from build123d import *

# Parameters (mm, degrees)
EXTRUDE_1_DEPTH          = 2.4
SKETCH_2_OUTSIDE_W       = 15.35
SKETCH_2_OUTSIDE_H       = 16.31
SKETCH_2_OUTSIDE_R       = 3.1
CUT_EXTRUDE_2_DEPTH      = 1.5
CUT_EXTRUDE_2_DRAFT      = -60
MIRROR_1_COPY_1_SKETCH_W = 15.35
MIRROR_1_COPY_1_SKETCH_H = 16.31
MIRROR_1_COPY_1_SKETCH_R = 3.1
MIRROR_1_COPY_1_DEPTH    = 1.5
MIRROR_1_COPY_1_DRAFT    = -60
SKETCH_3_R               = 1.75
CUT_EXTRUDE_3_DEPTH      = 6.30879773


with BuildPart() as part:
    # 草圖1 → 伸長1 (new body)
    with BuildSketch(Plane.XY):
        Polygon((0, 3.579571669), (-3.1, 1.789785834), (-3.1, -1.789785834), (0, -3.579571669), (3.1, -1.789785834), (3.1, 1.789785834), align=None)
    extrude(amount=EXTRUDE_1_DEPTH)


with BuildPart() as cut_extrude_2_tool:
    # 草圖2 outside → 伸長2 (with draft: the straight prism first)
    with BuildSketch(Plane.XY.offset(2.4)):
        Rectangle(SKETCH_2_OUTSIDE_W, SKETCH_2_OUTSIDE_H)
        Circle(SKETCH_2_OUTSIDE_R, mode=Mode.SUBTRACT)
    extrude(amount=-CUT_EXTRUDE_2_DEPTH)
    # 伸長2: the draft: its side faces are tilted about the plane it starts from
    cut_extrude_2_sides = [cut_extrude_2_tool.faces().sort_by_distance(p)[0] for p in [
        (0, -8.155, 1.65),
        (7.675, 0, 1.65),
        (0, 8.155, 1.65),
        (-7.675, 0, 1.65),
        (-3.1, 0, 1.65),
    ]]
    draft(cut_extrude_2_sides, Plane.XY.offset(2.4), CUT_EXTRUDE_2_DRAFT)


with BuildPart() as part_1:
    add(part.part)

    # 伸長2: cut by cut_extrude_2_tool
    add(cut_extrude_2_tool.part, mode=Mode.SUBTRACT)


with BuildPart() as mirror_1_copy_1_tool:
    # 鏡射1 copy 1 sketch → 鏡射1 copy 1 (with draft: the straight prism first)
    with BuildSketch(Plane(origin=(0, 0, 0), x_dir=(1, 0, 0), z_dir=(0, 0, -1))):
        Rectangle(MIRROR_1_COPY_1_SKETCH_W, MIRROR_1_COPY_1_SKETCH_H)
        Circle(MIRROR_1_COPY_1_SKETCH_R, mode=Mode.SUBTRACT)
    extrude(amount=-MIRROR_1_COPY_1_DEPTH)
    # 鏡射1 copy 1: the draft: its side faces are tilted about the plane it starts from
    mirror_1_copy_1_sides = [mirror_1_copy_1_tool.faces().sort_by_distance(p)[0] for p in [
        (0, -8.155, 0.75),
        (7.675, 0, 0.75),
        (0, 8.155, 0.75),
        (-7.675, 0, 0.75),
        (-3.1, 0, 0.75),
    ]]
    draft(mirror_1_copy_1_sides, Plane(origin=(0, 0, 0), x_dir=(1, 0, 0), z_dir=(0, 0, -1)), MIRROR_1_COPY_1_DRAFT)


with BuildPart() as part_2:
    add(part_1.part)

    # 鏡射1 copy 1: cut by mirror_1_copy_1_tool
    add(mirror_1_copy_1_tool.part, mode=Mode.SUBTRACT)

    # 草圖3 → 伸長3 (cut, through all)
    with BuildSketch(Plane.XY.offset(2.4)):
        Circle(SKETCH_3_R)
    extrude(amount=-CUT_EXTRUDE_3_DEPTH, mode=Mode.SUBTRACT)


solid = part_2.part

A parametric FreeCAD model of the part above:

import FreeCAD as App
import Part
import Sketcher
Q = App.Units.Quantity


def faces_at(feature, points):
    """Names of the faces that lie closest to the given points."""
    faces = feature.Shape.Faces
    near = lambda p: min(range(len(faces)), key=lambda i: faces[i].distToShape(Part.Vertex(*p))[0])
    return sorted({f"Face{near(p) + 1}" for p in points})


def add_polygon(sketch, points):
    """Adds a closed chain of lines whose ends are joined by coincident constraints."""
    first, n = sketch.GeometryCount, len(points)
    for a, b in zip(points, points[1:] + points[:1]):
        sketch.addGeometry(Part.LineSegment(App.Vector(*a, 0), App.Vector(*b, 0)), False)
    for i in range(n):
        sketch.addConstraint(Sketcher.Constraint("Coincident", first + i, 2, first + (i + 1) % n, 1))

doc = App.newDocument("Part")
body = doc.addObject("PartDesign::Body", "Body")

sketch1 = body.newObject("Sketcher::SketchObject", "Sketch")
sketch1.AttachmentSupport = (doc.getObject("XY_Plane"), [""])
sketch1.MapMode = "FlatFace"
add_polygon(sketch1, [(0, 3.6), (-3.1, 1.8), (-3.1, -1.8), (0, -3.6), (3.1, -1.8), (3.1, 1.8)])
sketch1.addConstraint(Sketcher.Constraint("Vertical", 1))
sketch1.addConstraint(Sketcher.Constraint("Vertical", 4))
sketch1.addConstraint(Sketcher.Constraint("Symmetric", 0, 2, 3, 2, -1, 1))
sketch1.addConstraint(Sketcher.Constraint("Symmetric", 2, 2, 5, 2, -1, 1))
sketch1.addConstraint(Sketcher.Constraint("PointOnObject", 2, 2, -2))
sketch1.addConstraint(Sketcher.Constraint("Parallel", 2, 5))
sketch1.addConstraint(Sketcher.Constraint("Horizontal", 1, 2, 3, 2))
sketch1.addConstraint(Sketcher.Constraint("Angle", 0, Q("-150 deg")))
sketch1.addConstraint(Sketcher.Constraint("DistanceX", 0, 2, -1, 1, 3.1))
sketch1.addConstraint(Sketcher.Constraint("DistanceY", 1, 2, 1, 1, 3.579572))
pad1 = body.newObject("PartDesign::Pad", "Pad")
pad1.Profile = sketch1
pad1.Length = 2.4
body2 = doc.addObject("PartDesign::Body", "Body001")

sketch2 = body2.newObject("Sketcher::SketchObject", "Sketch001")
sketch2.AttachmentSupport = (doc.getObject("XY_Plane001"), [""])
sketch2.MapMode = "FlatFace"
sketch2.AttachmentOffset = App.Placement(App.Vector(0, 0, 2.4), App.Rotation())
add_polygon(sketch2, [(-7.7, 8.2), (-7.7, -8.2), (7.7, -8.2), (7.7, 8.2)])
sketch2.addGeometry(Part.Circle(App.Vector(0, 0, 0), App.Vector(0, 0, 1), 3.1), False)
sketch2.addConstraint(Sketcher.Constraint("Vertical", 0))
sketch2.addConstraint(Sketcher.Constraint("Horizontal", 1))
sketch2.addConstraint(Sketcher.Constraint("Vertical", 2))
sketch2.addConstraint(Sketcher.Constraint("Horizontal", 3))
sketch2.addConstraint(Sketcher.Constraint("Coincident", 4, 3, -1, 1))
sketch2.addConstraint(Sketcher.Constraint("Symmetric", 0, 2, 2, 2, -1, 1))
sketch2.addConstraint(Sketcher.Constraint("Diameter", 4, 6.2))
sketch2.addConstraint(Sketcher.Constraint("DistanceX", 1, 1, 1, 2, 15.35))
sketch2.addConstraint(Sketcher.Constraint("DistanceY", 0, 2, 0, 1, 16.31))
pad2 = body2.newObject("PartDesign::Pad", "Pad001")
pad2.Profile = sketch2
pad2.Length = 1.5
pad2.Reversed = True
doc.recompute()

datumplane = body2.newObject("PartDesign::Plane", "DatumPlane")
datumplane.AttachmentSupport = (doc.getObject("XY_Plane001"), [""])
datumplane.MapMode = "FlatFace"
datumplane.AttachmentOffset = App.Placement(App.Vector(0, 0, 2.4), App.Rotation())
draft = body2.newObject("PartDesign::Draft", "Draft")
draft.Base = (pad2, faces_at(pad2, [
    (0, -8.155, 1.65),
    (7.675, 0, 1.65),
    (0, 8.155, 1.65),
    (-7.675, 0, 1.65),
    (-3.1, 0, 1.65),
]))
draft.NeutralPlane = (datumplane, [""])
draft.Angle = 60
draft.Reversed = True
doc.recompute()

boolean = body.newObject("PartDesign::Boolean", "Boolean")
boolean.Type = "Cut"
boolean.addObjects([body2])
body3 = doc.addObject("PartDesign::Body", "Body002")

sketch3 = body3.newObject("Sketcher::SketchObject", "Sketch002")
sketch3.AttachmentSupport = (doc.getObject("XY_Plane002"), [""])
sketch3.MapMode = "FlatFace"
add_polygon(sketch3, [(-7.7, -8.2), (-7.7, 8.2), (7.7, 8.2), (7.7, -8.2)])
sketch3.addGeometry(Part.Circle(App.Vector(0, 0, 0), App.Vector(0, 0, 1), 3.1), False)
sketch3.addConstraint(Sketcher.Constraint("Vertical", 0))
sketch3.addConstraint(Sketcher.Constraint("Horizontal", 1))
sketch3.addConstraint(Sketcher.Constraint("Vertical", 2))
sketch3.addConstraint(Sketcher.Constraint("Horizontal", 3))
sketch3.addConstraint(Sketcher.Constraint("Coincident", 4, 3, -1, 1))
sketch3.addConstraint(Sketcher.Constraint("Symmetric", 0, 2, 2, 2, -1, 1))
sketch3.addConstraint(Sketcher.Constraint("Diameter", 4, 6.2))
sketch3.addConstraint(Sketcher.Constraint("DistanceX", 1, 1, 1, 2, 15.35))
sketch3.addConstraint(Sketcher.Constraint("DistanceY", 0, 1, 0, 2, 16.31))
pad3 = body3.newObject("PartDesign::Pad", "Pad002")
pad3.Profile = sketch3
pad3.Length = 1.5
doc.recompute()

draft2 = body3.newObject("PartDesign::Draft", "Draft001")
draft2.Base = (pad3, faces_at(pad3, [
    (0, -8.155, 0.75),
    (7.675, 0, 0.75),
    (0, 8.155, 0.75),
    (-7.675, 0, 0.75),
    (-3.1, 0, 0.75),
]))
draft2.NeutralPlane = (doc.getObject("XY_Plane002"), [""])
draft2.Angle = 60
draft2.Reversed = False
doc.recompute()

boolean2 = body.newObject("PartDesign::Boolean", "Boolean001")
boolean2.Type = "Cut"
boolean2.addObjects([body3])

sketch4 = body.newObject("Sketcher::SketchObject", "Sketch003")
sketch4.AttachmentSupport = (doc.getObject("XY_Plane"), [""])
sketch4.MapMode = "FlatFace"
sketch4.AttachmentOffset = App.Placement(App.Vector(0, 0, 2.4), App.Rotation())
sketch4.addGeometry(Part.Circle(App.Vector(0, 0, 0), App.Vector(0, 0, 1), 1.8), False)
sketch4.addConstraint(Sketcher.Constraint("Coincident", 0, 3, -1, 1))
sketch4.addConstraint(Sketcher.Constraint("Diameter", 0, 3.5))
pocket1 = body.newObject("PartDesign::Pocket", "Pocket")
pocket1.Profile = sketch4
pocket1.Type = "ThroughAll"

doc.recompute()
